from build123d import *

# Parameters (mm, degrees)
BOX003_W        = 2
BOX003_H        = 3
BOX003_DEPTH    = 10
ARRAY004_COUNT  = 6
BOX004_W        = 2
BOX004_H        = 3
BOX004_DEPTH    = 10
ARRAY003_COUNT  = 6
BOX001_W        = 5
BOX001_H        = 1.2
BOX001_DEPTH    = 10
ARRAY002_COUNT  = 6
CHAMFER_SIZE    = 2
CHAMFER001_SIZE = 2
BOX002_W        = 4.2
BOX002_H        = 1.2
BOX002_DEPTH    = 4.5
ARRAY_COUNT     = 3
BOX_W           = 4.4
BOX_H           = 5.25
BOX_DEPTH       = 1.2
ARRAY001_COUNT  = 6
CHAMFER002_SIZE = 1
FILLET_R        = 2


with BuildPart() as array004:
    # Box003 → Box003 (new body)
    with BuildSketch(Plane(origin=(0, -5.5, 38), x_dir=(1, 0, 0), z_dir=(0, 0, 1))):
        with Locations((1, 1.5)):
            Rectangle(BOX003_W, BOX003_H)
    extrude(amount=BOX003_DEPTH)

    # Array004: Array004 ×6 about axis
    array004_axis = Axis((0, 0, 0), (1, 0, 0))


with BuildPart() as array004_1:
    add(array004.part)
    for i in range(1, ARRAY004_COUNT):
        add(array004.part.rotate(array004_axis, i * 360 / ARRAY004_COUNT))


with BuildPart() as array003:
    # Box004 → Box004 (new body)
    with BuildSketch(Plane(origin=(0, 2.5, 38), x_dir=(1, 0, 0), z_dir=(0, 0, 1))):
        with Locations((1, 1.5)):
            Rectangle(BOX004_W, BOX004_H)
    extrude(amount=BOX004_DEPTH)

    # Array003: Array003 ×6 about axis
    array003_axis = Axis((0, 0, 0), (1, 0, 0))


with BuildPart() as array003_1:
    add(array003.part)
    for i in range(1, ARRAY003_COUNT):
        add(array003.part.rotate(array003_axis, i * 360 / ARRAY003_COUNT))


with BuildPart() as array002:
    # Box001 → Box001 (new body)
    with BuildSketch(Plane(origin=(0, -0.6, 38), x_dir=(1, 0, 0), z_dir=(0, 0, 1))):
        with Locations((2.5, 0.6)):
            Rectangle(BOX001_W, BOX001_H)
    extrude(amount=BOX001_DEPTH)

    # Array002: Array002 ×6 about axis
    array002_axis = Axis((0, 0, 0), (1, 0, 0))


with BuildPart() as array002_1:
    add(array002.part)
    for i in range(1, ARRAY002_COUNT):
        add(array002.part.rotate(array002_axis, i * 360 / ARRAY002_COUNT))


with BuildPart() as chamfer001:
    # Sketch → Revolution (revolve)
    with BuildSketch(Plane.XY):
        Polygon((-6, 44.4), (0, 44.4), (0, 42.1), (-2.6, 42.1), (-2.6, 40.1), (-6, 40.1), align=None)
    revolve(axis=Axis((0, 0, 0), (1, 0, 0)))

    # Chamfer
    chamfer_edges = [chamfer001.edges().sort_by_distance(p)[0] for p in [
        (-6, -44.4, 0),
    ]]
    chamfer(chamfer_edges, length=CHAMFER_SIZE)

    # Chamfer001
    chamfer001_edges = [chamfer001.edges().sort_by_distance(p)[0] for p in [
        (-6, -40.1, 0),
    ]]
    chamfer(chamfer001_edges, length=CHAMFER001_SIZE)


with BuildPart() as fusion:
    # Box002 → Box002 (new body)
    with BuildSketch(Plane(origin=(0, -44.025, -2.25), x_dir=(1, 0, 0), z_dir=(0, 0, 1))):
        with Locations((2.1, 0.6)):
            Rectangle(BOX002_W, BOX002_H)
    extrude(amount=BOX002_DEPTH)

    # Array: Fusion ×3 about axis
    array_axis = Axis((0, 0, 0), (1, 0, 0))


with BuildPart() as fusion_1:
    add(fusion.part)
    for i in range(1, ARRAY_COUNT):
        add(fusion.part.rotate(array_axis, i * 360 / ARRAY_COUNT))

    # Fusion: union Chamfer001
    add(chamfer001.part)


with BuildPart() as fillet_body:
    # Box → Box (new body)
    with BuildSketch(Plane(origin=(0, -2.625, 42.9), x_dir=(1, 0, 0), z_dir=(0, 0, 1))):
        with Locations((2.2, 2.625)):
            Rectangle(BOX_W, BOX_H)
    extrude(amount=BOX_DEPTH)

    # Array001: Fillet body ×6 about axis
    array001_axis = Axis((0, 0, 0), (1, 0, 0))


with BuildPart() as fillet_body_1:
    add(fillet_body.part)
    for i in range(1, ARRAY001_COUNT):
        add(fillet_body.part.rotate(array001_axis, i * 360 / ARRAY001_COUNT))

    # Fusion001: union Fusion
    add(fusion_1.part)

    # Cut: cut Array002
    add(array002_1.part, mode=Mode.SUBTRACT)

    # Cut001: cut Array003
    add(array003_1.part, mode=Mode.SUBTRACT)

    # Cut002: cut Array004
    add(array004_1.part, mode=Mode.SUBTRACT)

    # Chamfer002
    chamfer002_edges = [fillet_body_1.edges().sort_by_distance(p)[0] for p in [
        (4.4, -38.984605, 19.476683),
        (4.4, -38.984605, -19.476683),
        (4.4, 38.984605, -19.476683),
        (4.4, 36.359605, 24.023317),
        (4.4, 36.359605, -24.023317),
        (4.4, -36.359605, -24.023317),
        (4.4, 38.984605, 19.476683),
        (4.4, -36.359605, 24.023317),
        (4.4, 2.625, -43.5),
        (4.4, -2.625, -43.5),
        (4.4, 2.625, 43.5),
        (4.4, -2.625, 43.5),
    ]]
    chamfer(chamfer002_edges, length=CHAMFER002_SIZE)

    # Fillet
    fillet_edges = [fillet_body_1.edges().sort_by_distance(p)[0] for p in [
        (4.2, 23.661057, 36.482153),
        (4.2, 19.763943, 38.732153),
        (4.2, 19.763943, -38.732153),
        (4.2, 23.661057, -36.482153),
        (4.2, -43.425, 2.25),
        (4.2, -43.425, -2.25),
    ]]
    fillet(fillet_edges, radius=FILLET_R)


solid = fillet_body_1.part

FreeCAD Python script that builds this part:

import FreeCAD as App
import Part
import Sketcher
from FreeCAD import Vector
Q = App.Units.Quantity


def edges_at(feature, points):
    """Names of the edges that pass closest to the given points."""
    edges = feature.Shape.Edges
    near = lambda p: min(range(len(edges)), key=lambda i: edges[i].distToShape(Part.Vertex(*p))[0])
    return sorted({f"Edge{near(p) + 1}" for p in points})


def add_polygon(sketch, points):
    """Adds a closed chain of lines whose ends are joined by coincident constraints."""
    first, n = sketch.GeometryCount, len(points)
    for a, b in zip(points, points[1:] + points[:1]):
        sketch.addGeometry(Part.LineSegment(App.Vector(*a, 0), App.Vector(*b, 0)), False)
    for i in range(n):
        sketch.addConstraint(Sketcher.Constraint("Coincident", first + i, 2, first + (i + 1) % n, 1))

doc = App.newDocument("Part")
body = doc.addObject("PartDesign::Body", "Body")

sketch1 = body.newObject("Sketcher::SketchObject", "Sketch")
sketch1.AttachmentSupport = (doc.getObject("XY_Plane"), [""])
sketch1.MapMode = "FlatFace"
sketch1.AttachmentOffset = App.Placement(Vector(0, 0, 38), App.Rotation())
add_polygon(sketch1, [(0, -2.5), (0, -5.5), (2, -5.5), (2, -2.5)])
sketch1.addConstraint([
    Sketcher.Constraint("Vertical", 0),
    Sketcher.Constraint("Horizontal", 1),
    Sketcher.Constraint("Vertical", 2),
    Sketcher.Constraint("Horizontal", 3),
    Sketcher.Constraint("PointOnObject", 0, 2, -2),
    Sketcher.Constraint("DistanceX", 1, 1, 1, 2, Q("2 mm")),
    Sketcher.Constraint("DistanceY", 0, 2, 0, 1, Q("3 mm")),
    Sketcher.Constraint("DistanceY", 0, 2, -1, 1, Q("5.5 mm")),
])
pad1 = body.newObject("PartDesign::Pad", "Pad")
pad1.Profile = sketch1
pad1.Length = 10
body2 = doc.addObject("PartDesign::Body", "Body001")
body2.AllowCompound = True
doc.recompute()

body2.BaseFeature = body
doc.recompute()

body3 = doc.addObject("PartDesign::Body", "Body002")
body3.BaseFeature = body
body3.Placement = App.Placement(Vector(0, 0, 0), App.Rotation(Vector(1, 0, 0), 60))
boolean = body2.newObject("PartDesign::Boolean", "Boolean")
boolean.Type = "Fuse"
boolean.addObjects([body3])
doc.recompute()

body4 = doc.addObject("PartDesign::Body", "Body003")
body4.BaseFeature = body
body4.Placement = App.Placement(Vector(0, 0, 0), App.Rotation(Vector(1, 0, 0), 120))
boolean2 = body2.newObject("PartDesign::Boolean", "Boolean001")
boolean2.Type = "Fuse"
boolean2.addObjects([body4])
doc.recompute()

body5 = doc.addObject("PartDesign::Body", "Body004")
body5.BaseFeature = body
body5.Placement = App.Placement(Vector(0, 0, 0), App.Rotation(Vector(1, 0, 0), 180))
boolean3 = body2.newObject("PartDesign::Boolean", "Boolean002")
boolean3.Type = "Fuse"
boolean3.addObjects([body5])
doc.recompute()

body6 = doc.addObject("PartDesign::Body", "Body005")
body6.BaseFeature = body
body6.Placement = App.Placement(Vector(0, 0, 0), App.Rotation(Vector(1, 0, 0), 240))
boolean4 = body2.newObject("PartDesign::Boolean", "Boolean003")
boolean4.Type = "Fuse"
boolean4.addObjects([body6])
doc.recompute()

body.Placement = App.Placement(Vector(0, 0, 0), App.Rotation(Vector(1, 0, 0), 300))
boolean5 = body2.newObject("PartDesign::Boolean", "Boolean004")
boolean5.Type = "Fuse"
boolean5.addObjects([body])
body7 = doc.addObject("PartDesign::Body", "Body006")

sketch2 = body7.newObject("Sketcher::SketchObject", "Sketch001")
sketch2.AttachmentSupport = (doc.getObject("XY_Plane006"), [""])
sketch2.MapMode = "FlatFace"
sketch2.AttachmentOffset = App.Placement(Vector(0, 0, 38), App.Rotation())
add_polygon(sketch2, [(0, 5.5), (0, 2.5), (2, 2.5), (2, 5.5)])
sketch2.addConstraint([
    Sketcher.Constraint("Vertical", 0),
    Sketcher.Constraint("Horizontal", 1),
    Sketcher.Constraint("Vertical", 2),
    Sketcher.Constraint("Horizontal", 3),
    Sketcher.Constraint("PointOnObject", 0, 2, -2),
    Sketcher.Constraint("DistanceX", 1, 1, 1, 2, Q("2 mm")),
    Sketcher.Constraint("DistanceY", 0, 2, 0, 1, Q("3 mm")),
    Sketcher.Constraint("DistanceY", -1, 1, 0, 2, Q("2.5 mm")),
])
pad2 = body7.newObject("PartDesign::Pad", "Pad001")
pad2.Profile = sketch2
pad2.Length = 10
body8 = doc.addObject("PartDesign::Body", "Body007")
body8.AllowCompound = True
doc.recompute()

body8.BaseFeature = body7
doc.recompute()

body9 = doc.addObject("PartDesign::Body", "Body008")
body9.BaseFeature = body7
body9.Placement = App.Placement(Vector(0, 0, 0), App.Rotation(Vector(1, 0, 0), 60))
boolean6 = body8.newObject("PartDesign::Boolean", "Boolean005")
boolean6.Type = "Fuse"
boolean6.addObjects([body9])
doc.recompute()

body10 = doc.addObject("PartDesign::Body", "Body009")
body10.BaseFeature = body7
body10.Placement = App.Placement(Vector(0, 0, 0), App.Rotation(Vector(1, 0, 0), 120))
boolean7 = body8.newObject("PartDesign::Boolean", "Boolean006")
boolean7.Type = "Fuse"
boolean7.addObjects([body10])
doc.recompute()

body11 = doc.addObject("PartDesign::Body", "Body010")
body11.BaseFeature = body7
body11.Placement = App.Placement(Vector(0, 0, 0), App.Rotation(Vector(1, 0, 0), 180))
boolean8 = body8.newObject("PartDesign::Boolean", "Boolean007")
boolean8.Type = "Fuse"
boolean8.addObjects([body11])
doc.recompute()

body12 = doc.addObject("PartDesign::Body", "Body011")
body12.BaseFeature = body7
body12.Placement = App.Placement(Vector(0, 0, 0), App.Rotation(Vector(1, 0, 0), 240))
boolean9 = body8.newObject("PartDesign::Boolean", "Boolean008")
boolean9.Type = "Fuse"
boolean9.addObjects([body12])
doc.recompute()

body7.Placement = App.Placement(Vector(0, 0, 0), App.Rotation(Vector(1, 0, 0), 300))
boolean10 = body8.newObject("PartDesign::Boolean", "Boolean009")
boolean10.Type = "Fuse"
boolean10.addObjects([body7])
body13 = doc.addObject("PartDesign::Body", "Body012")

sketch3 = body13.newObject("Sketcher::SketchObject", "Sketch002")
sketch3.AttachmentSupport = (doc.getObject("XY_Plane012"), [""])
sketch3.MapMode = "FlatFace"
sketch3.AttachmentOffset = App.Placement(Vector(0, 0, 38), App.Rotation())
add_polygon(sketch3, [(0, 0.6), (0, -0.6), (5, -0.6), (5, 0.6)])
sketch3.addConstraint([
    Sketcher.Constraint("Vertical", 0),
    Sketcher.Constraint("Horizontal", 1),
    Sketcher.Constraint("Vertical", 2),
    Sketcher.Constraint("Horizontal", 3),
    Sketcher.Constraint("Symmetric", 0, 2, 3, 2, -1, 1),
    Sketcher.Constraint("DistanceX", 1, 1, 1, 2, Q("5 mm")),
    Sketcher.Constraint("DistanceY", 0, 2, 0, 1, Q("1.2 mm")),
])
pad3 = body13.newObject("PartDesign::Pad", "Pad002")
pad3.Profile = sketch3
pad3.Length = 10
body14 = doc.addObject("PartDesign::Body", "Body013")
body14.AllowCompound = True
doc.recompute()

body14.BaseFeature = body13
doc.recompute()

body15 = doc.addObject("PartDesign::Body", "Body014")
body15.BaseFeature = body13
body15.Placement = App.Placement(Vector(0, 0, 0), App.Rotation(Vector(1, 0, 0), 60))
boolean11 = body14.newObject("PartDesign::Boolean", "Boolean010")
boolean11.Type = "Fuse"
boolean11.addObjects([body15])
doc.recompute()

body16 = doc.addObject("PartDesign::Body", "Body015")
body16.BaseFeature = body13
body16.Placement = App.Placement(Vector(0, 0, 0), App.Rotation(Vector(1, 0, 0), 120))
boolean12 = body14.newObject("PartDesign::Boolean", "Boolean011")
boolean12.Type = "Fuse"
boolean12.addObjects([body16])
doc.recompute()

body17 = doc.addObject("PartDesign::Body", "Body016")
body17.BaseFeature = body13
body17.Placement = App.Placement(Vector(0, 0, 0), App.Rotation(Vector(1, 0, 0), 180))
boolean13 = body14.newObject("PartDesign::Boolean", "Boolean012")
boolean13.Type = "Fuse"
boolean13.addObjects([body17])
doc.recompute()

body18 = doc.addObject("PartDesign::Body", "Body017")
body18.BaseFeature = body13
body18.Placement = App.Placement(Vector(0, 0, 0), App.Rotation(Vector(1, 0, 0), 240))
boolean14 = body14.newObject("PartDesign::Boolean", "Boolean013")
boolean14.Type = "Fuse"
boolean14.addObjects([body18])
doc.recompute()

body13.Placement = App.Placement(Vector(0, 0, 0), App.Rotation(Vector(1, 0, 0), 300))
boolean15 = body14.newObject("PartDesign::Boolean", "Boolean014")
boolean15.Type = "Fuse"
boolean15.addObjects([body13])
body19 = doc.addObject("PartDesign::Body", "Body018")

sketch4 = body19.newObject("Sketcher::SketchObject", "Sketch003")
sketch4.AttachmentSupport = (doc.getObject("XY_Plane018"), [""])
sketch4.MapMode = "FlatFace"
add_polygon(sketch4, [(0, 44.4), (-6, 44.4), (-6, 40.1), (-2.6, 40.1), (-2.6, 42.1), (0, 42.1)])
sketch4.addConstraint([
    Sketcher.Constraint("Horizontal", 0),
    Sketcher.Constraint("Vertical", 1),
    Sketcher.Constraint("Horizontal", 2),
    Sketcher.Constraint("Vertical", 3),
    Sketcher.Constraint("Horizontal", 4),
    Sketcher.Constraint("Vertical", 5),
    Sketcher.Constraint("PointOnObject", 4, 2, -2),
    Sketcher.Constraint("DistanceX", 0, 2, 0, 1, Q("6 mm")),
    Sketcher.Constraint("DistanceY", 3, 1, 3, 2, Q("2 mm")),
    Sketcher.Constraint("DistanceX", 2, 1, 2, 2, Q("3.4 mm")),
    Sketcher.Constraint("DistanceY", 1, 2, 1, 1, Q("4.3 mm")),
    Sketcher.Constraint("DistanceY", -1, 1, 0, 2, Q("44.4 mm")),
])
revolution = body19.newObject("PartDesign::Revolution", "Revolution")
revolution.Profile = sketch4
revolution.ReferenceAxis = (sketch4, ["H_Axis"])
revolution.Angle = 360
doc.recompute()

chamfer = body19.newObject("PartDesign::Chamfer", "Chamfer")
chamfer.Base = (revolution, edges_at(revolution, [(-6, -44.4, 0)]))
chamfer.Size = 2
doc.recompute()

chamfer2 = body19.newObject("PartDesign::Chamfer", "Chamfer001")
chamfer2.Base = (chamfer, edges_at(chamfer, [(-6, -40.1, 0)]))
chamfer2.Size = 2
body20 = doc.addObject("PartDesign::Body", "Body019")

sketch5 = body20.newObject("Sketcher::SketchObject", "Sketch004")
sketch5.AttachmentSupport = (doc.getObject("XY_Plane019"), [""])
sketch5.MapMode = "FlatFace"
sketch5.AttachmentOffset = App.Placement(Vector(0, 0, -2.25), App.Rotation())
add_polygon(sketch5, [(0, -42.825), (0, -44.025), (4.2, -44.025), (4.2, -42.825)])
sketch5.addConstraint([
    Sketcher.Constraint("Vertical", 0),
    Sketcher.Constraint("Horizontal", 1),
    Sketcher.Constraint("Vertical", 2),
    Sketcher.Constraint("Horizontal", 3),
    Sketcher.Constraint("PointOnObject", 0, 2, -2),
    Sketcher.Constraint("DistanceX", 1, 1, 1, 2, Q("4.2 mm")),
    Sketcher.Constraint("DistanceY", 0, 2, 0, 1, Q("1.2 mm")),
    Sketcher.Constraint("DistanceY", 0, 2, -1, 1, Q("44.025 mm")),
])
pad4 = body20.newObject("PartDesign::Pad", "Pad003")
pad4.Profile = sketch5
pad4.Length = 4.5
body21 = doc.addObject("PartDesign::Body", "Body020")
body21.AllowCompound = True
doc.recompute()

body21.BaseFeature = body20
doc.recompute()

body22 = doc.addObject("PartDesign::Body", "Body021")
body22.BaseFeature = body20
body22.Placement = App.Placement(Vector(0, 0, 0), App.Rotation(Vector(1, 0, 0), 120))
boolean16 = body21.newObject("PartDesign::Boolean", "Boolean015")
boolean16.Type = "Fuse"
boolean16.addObjects([body22])
doc.recompute()

body20.Placement = App.Placement(Vector(0, 0, 0), App.Rotation(Vector(1, 0, 0), 240))
boolean17 = body21.newObject("PartDesign::Boolean", "Boolean016")
boolean17.Type = "Fuse"
boolean17.addObjects([body20])
doc.recompute()

boolean18 = body21.newObject("PartDesign::Boolean", "Boolean017")
boolean18.Type = "Fuse"
boolean18.addObjects([body19])
body23 = doc.addObject("PartDesign::Body", "Body022")

sketch6 = body23.newObject("Sketcher::SketchObject", "Sketch005")
sketch6.AttachmentSupport = (doc.getObject("XY_Plane022"), [""])
sketch6.MapMode = "FlatFace"
sketch6.AttachmentOffset = App.Placement(Vector(0, 0, 42.9), App.Rotation())
add_polygon(sketch6, [(0, 2.625), (0, -2.625), (4.4, -2.625), (4.4, 2.625)])
sketch6.addConstraint([
    Sketcher.Constraint("Vertical", 0),
    Sketcher.Constraint("Horizontal", 1),
    Sketcher.Constraint("Vertical", 2),
    Sketcher.Constraint("Horizontal", 3),
    Sketcher.Constraint("Symmetric", 0, 2, 3, 2, -1, 1),
    Sketcher.Constraint("DistanceX", 1, 1, 1, 2, Q("4.4 mm")),
    Sketcher.Constraint("DistanceY", 0, 2, 0, 1, Q("5.25 mm")),
])
pad5 = body23.newObject("PartDesign::Pad", "Pad004")
pad5.Profile = sketch6
pad5.Length = 1.2
body24 = doc.addObject("PartDesign::Body", "Body023")
body24.AllowCompound = True
doc.recompute()

body24.BaseFeature = body23
doc.recompute()

body25 = doc.addObject("PartDesign::Body", "Body024")
body25.BaseFeature = body23
body25.Placement = App.Placement(Vector(0, 0, 0), App.Rotation(Vector(1, 0, 0), 60))
boolean19 = body24.newObject("PartDesign::Boolean", "Boolean018")
boolean19.Type = "Fuse"
boolean19.addObjects([body25])
doc.recompute()

body26 = doc.addObject("PartDesign::Body", "Body025")
body26.BaseFeature = body23
body26.Placement = App.Placement(Vector(0, 0, 0), App.Rotation(Vector(1, 0, 0), 120))
boolean20 = body24.newObject("PartDesign::Boolean", "Boolean019")
boolean20.Type = "Fuse"
boolean20.addObjects([body26])
doc.recompute()

body27 = doc.addObject("PartDesign::Body", "Body026")
body27.BaseFeature = body23
body27.Placement = App.Placement(Vector(0, 0, 0), App.Rotation(Vector(1, 0, 0), 180))
boolean21 = body24.newObject("PartDesign::Boolean", "Boolean020")
boolean21.Type = "Fuse"
boolean21.addObjects([body27])
doc.recompute()

body28 = doc.addObject("PartDesign::Body", "Body027")
body28.BaseFeature = body23
body28.Placement = App.Placement(Vector(0, 0, 0), App.Rotation(Vector(1, 0, 0), 240))
boolean22 = body24.newObject("PartDesign::Boolean", "Boolean021")
boolean22.Type = "Fuse"
boolean22.addObjects([body28])
doc.recompute()

body23.Placement = App.Placement(Vector(0, 0, 0), App.Rotation(Vector(1, 0, 0), 300))
boolean23 = body24.newObject("PartDesign::Boolean", "Boolean022")
boolean23.Type = "Fuse"
boolean23.addObjects([body23])
doc.recompute()

boolean24 = body24.newObject("PartDesign::Boolean", "Boolean023")
boolean24.Type = "Fuse"
boolean24.addObjects([body21])
doc.recompute()

boolean25 = body24.newObject("PartDesign::Boolean", "Boolean024")
boolean25.Type = "Cut"
boolean25.addObjects([body14])
doc.recompute()

boolean26 = body24.newObject("PartDesign::Boolean", "Boolean025")
boolean26.Type = "Cut"
boolean26.addObjects([body8])
doc.recompute()

boolean27 = body24.newObject("PartDesign::Boolean", "Boolean026")
boolean27.Type = "Cut"
boolean27.addObjects([body2])
doc.recompute()

chamfer3 = body24.newObject("PartDesign::Chamfer", "Chamfer002")
chamfer3.Base = (boolean27, edges_at(boolean27, [
    (4.4, -38.985, 19.477),
    (4.4, -38.985, -19.477),
    (4.4, 38.985, -19.477),
    (4.4, 36.36, 24.023),
    (4.4, 36.36, -24.023),
    (4.4, -36.36, -24.023),
    (4.4, 38.985, 19.477),
    (4.4, -36.36, 24.023),
    (4.4, 2.625, -43.5),
    (4.4, -2.625, -43.5),
    (4.4, 2.625, 43.5),
    (4.4, -2.625, 43.5),
]))
chamfer3.Size = 1
doc.recompute()

fillet = body24.newObject("PartDesign::Fillet", "Fillet")
fillet.Base = (chamfer3, edges_at(chamfer3, [
    (4.2, 23.661, 36.482),
    (4.2, 19.764, 38.732),
    (4.2, 19.764, -38.732),
    (4.2, 23.661, -36.482),
    (4.2, -43.425, 2.25),
    (4.2, -43.425, -2.25),
]))
fillet.Radius = 2

doc.recompute()
